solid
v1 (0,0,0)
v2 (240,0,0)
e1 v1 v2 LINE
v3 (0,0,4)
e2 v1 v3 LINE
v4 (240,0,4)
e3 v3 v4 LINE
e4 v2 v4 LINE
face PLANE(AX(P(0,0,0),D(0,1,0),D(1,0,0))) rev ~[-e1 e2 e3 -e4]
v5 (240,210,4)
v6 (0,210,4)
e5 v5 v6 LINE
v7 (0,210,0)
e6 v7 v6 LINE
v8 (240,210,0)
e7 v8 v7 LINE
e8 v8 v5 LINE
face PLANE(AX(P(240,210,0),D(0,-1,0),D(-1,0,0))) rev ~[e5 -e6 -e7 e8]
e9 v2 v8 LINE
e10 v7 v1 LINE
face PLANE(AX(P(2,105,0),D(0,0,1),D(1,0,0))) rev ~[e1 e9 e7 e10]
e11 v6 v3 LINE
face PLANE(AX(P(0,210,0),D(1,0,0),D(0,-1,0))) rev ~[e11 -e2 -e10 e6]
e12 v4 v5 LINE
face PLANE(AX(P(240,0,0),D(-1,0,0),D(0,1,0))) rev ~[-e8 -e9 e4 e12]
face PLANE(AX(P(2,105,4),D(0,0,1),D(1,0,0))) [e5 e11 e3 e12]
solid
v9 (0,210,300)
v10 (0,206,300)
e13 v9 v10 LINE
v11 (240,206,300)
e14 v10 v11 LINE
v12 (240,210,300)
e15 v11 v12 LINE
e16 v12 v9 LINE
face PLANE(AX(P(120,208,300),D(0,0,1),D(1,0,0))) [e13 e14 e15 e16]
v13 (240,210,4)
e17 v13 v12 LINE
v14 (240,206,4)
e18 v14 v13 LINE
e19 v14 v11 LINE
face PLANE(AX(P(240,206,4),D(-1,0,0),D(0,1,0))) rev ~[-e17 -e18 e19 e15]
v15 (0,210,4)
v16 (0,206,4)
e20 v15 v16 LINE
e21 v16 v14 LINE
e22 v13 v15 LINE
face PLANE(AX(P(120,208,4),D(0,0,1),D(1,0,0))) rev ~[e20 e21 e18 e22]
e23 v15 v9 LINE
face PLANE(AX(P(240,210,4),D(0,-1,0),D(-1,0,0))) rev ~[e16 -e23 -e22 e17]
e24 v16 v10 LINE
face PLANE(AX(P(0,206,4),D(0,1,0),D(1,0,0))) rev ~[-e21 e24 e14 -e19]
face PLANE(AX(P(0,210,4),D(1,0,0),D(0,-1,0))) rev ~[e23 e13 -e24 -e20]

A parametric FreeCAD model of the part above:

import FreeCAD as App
import Part
import Sketcher

V = App.Vector

doc = App.newDocument("Part")
params = doc.addObject("Spreadsheet::Sheet", "Params")
for row, (alias, value) in enumerate([
    ("sketch1_width", "240 mm"),
    ("sketch1_height", "210 mm"),
    ("pad1_length", "4 mm"),
    ("sketch2_width", "240 mm"),
    ("sketch2_height", "4 mm"),
    ("pad2_length", "296 mm"),
], start=1):
    params.set(f"A{row}", alias)
    params.set(f"B{row}", "=" + value)
    params.setAlias(f"B{row}", alias)

body = doc.addObject("PartDesign::Body", "Body")

# Sketch on XY plane
sketch1 = doc.addObject("Sketcher::SketchObject", "Sketch")
body.addObject(sketch1)
sketch1.AttachmentSupport = (doc.XY_Plane, [""])
sketch1.MapMode = "FlatFace"
sketch1.addGeometry([
    Part.LineSegment(V(240, 210, 0), V(0, 210, 0)),
    Part.LineSegment(V(0, 210, 0), V(0, 0, 0)),
    Part.LineSegment(V(0, 0, 0), V(240, 0, 0)),
    Part.LineSegment(V(240, 0, 0), V(240, 210, 0)),
], False)
sketch1.addConstraint([
    Sketcher.Constraint("Coincident", 0, 2, 1, 1),
    Sketcher.Constraint("Coincident", 1, 2, 2, 1),
    Sketcher.Constraint("Coincident", 2, 2, 3, 1),
    Sketcher.Constraint("Coincident", 3, 2, 0, 1),
    Sketcher.Constraint("Horizontal", 0),
    Sketcher.Constraint("Vertical", 1),
    Sketcher.Constraint("Horizontal", 2),
    Sketcher.Constraint("Vertical", 3),
    Sketcher.Constraint("Coincident", 1, 2, -1, 1),
    Sketcher.Constraint("DistanceX", 0, 2, 0, 1, 240.0),
    Sketcher.Constraint("DistanceY", 1, 2, 1, 1, 210.0),
])
sketch1.setExpression("Constraints[9]", "Params.sketch1_width")
sketch1.setExpression("Constraints[10]", "Params.sketch1_height")
pad1 = doc.addObject("PartDesign::Pad", "Pad")
body.addObject(pad1)
pad1.Profile = sketch1
pad1.setExpression("Length", "Params.pad1_length")
body2 = doc.addObject("PartDesign::Body", "Body001")

# Sketch on XY plane
sketch2 = doc.addObject("Sketcher::SketchObject", "Sketch001")
body2.addObject(sketch2)
sketch2.AttachmentSupport = (doc.getObject("XY_Plane001"), [""])
sketch2.MapMode = "FlatFace"
sketch2.AttachmentOffset = App.Placement(V(0, 0, 4), App.Rotation())
sketch2.addGeometry([
    Part.LineSegment(V(0, 210, 0), V(0, 206, 0)),
    Part.LineSegment(V(0, 206, 0), V(240, 206, 0)),
    Part.LineSegment(V(240, 206, 0), V(240, 210, 0)),
    Part.LineSegment(V(240, 210, 0), V(0, 210, 0)),
], False)
sketch2.addConstraint([
    Sketcher.Constraint("Coincident", 0, 2, 1, 1),
    Sketcher.Constraint("Coincident", 1, 2, 2, 1),
    Sketcher.Constraint("Coincident", 2, 2, 3, 1),
    Sketcher.Constraint("Coincident", 3, 2, 0, 1),
    Sketcher.Constraint("Vertical", 0),
    Sketcher.Constraint("Horizontal", 1),
    Sketcher.Constraint("Vertical", 2),
    Sketcher.Constraint("Horizontal", 3),
    Sketcher.Constraint("PointOnObject", 0, 2, -2),
    Sketcher.Constraint("DistanceX", 1, 1, 1, 2, 240.0),
    Sketcher.Constraint("DistanceY", 0, 2, 0, 1, 4.0),
    Sketcher.Constraint("DistanceY", -1, 1, 0, 2, 206.0),
])
sketch2.setExpression("Constraints[9]", "Params.sketch2_width")
sketch2.setExpression("Constraints[10]", "Params.sketch2_height")
pad2 = doc.addObject("PartDesign::Pad", "Pad001")
body2.addObject(pad2)
pad2.Profile = sketch2
pad2.setExpression("Length", "Params.pad2_length")

doc.recompute()
